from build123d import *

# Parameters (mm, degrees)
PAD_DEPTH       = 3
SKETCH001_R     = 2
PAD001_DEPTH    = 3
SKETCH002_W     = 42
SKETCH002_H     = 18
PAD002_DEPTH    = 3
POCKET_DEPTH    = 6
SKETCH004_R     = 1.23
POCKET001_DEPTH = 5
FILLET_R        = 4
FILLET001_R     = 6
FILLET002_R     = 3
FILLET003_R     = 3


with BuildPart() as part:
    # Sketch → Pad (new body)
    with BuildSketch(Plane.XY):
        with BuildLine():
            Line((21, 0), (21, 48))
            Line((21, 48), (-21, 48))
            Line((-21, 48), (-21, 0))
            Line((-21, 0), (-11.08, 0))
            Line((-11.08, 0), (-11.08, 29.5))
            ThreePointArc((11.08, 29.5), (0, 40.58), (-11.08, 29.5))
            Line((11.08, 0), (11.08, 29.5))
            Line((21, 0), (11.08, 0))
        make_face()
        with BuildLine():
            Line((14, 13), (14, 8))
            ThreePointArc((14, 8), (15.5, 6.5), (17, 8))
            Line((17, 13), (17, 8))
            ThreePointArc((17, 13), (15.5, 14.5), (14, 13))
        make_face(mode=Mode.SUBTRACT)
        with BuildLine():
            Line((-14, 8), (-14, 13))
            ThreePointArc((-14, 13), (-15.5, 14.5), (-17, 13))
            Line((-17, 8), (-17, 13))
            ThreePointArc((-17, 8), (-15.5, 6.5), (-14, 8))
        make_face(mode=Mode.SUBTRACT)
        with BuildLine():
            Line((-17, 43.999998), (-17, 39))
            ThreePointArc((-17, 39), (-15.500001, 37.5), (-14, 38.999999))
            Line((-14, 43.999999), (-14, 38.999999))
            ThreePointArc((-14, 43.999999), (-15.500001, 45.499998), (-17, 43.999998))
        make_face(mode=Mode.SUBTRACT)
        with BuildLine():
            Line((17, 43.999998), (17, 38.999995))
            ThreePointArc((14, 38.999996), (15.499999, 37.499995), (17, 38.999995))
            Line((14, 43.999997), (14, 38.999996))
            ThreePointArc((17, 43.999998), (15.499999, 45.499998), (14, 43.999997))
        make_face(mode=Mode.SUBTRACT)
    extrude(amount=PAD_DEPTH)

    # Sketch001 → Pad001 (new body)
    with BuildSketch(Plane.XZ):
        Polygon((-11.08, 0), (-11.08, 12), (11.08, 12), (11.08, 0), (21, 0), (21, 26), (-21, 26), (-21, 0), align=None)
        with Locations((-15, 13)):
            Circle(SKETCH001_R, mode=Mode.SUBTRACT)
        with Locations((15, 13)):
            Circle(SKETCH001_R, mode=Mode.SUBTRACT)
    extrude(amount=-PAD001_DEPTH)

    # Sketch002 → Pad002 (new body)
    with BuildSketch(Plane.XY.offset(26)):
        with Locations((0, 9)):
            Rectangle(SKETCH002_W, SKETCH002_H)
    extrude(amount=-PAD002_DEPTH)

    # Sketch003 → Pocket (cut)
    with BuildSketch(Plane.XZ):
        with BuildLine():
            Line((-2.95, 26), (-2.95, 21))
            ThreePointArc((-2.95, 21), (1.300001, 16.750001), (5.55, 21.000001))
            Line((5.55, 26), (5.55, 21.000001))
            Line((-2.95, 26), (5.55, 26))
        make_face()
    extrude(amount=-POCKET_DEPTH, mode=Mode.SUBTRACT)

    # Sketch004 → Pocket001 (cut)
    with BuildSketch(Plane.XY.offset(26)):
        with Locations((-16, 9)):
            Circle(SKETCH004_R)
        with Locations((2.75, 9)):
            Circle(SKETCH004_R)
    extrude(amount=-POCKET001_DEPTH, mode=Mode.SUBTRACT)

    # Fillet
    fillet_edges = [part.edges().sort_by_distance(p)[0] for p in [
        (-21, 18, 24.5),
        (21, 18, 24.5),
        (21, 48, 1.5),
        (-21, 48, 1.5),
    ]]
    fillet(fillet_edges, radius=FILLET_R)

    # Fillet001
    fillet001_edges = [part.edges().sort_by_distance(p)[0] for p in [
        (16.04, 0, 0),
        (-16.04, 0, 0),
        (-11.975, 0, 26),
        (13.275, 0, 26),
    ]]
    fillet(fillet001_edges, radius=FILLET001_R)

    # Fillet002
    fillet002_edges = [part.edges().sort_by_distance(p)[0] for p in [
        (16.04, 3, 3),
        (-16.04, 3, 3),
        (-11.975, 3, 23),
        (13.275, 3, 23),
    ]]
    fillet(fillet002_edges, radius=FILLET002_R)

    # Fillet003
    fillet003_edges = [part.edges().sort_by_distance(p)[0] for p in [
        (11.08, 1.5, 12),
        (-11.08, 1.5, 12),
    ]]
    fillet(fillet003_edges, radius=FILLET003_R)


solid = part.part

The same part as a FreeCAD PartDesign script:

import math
import FreeCAD as App
import Part
import Sketcher


def edges_at(feature, points):
    """Names of the edges that pass closest to the given points."""
    edges = feature.Shape.Edges
    near = lambda p: min(range(len(edges)), key=lambda i: edges[i].distToShape(Part.Vertex(*p))[0])
    return sorted({f"Edge{near(p) + 1}" for p in points})


def add_polygon(sketch, points):
    """Adds a closed chain of lines whose ends are joined by coincident constraints."""
    first, n = sketch.GeometryCount, len(points)
    for a, b in zip(points, points[1:] + points[:1]):
        sketch.addGeometry(Part.LineSegment(App.Vector(*a, 0), App.Vector(*b, 0)), False)
    for i in range(n):
        sketch.addConstraint(Sketcher.Constraint("Coincident", first + i, 2, first + (i + 1) % n, 1))

doc = App.newDocument("Part")
body = doc.addObject("PartDesign::Body", "Body")

sketch1 = body.newObject("Sketcher::SketchObject", "Sketch")
sketch1.AttachmentSupport = (doc.getObject("XY_Plane"), [""])
sketch1.MapMode = "FlatFace"
sketch1.addGeometry([
    Part.LineSegment(App.Vector(21, 0, 0), App.Vector(21, 48, 0)),
    Part.LineSegment(App.Vector(21, 48, 0), App.Vector(-21, 48, 0)),
    Part.LineSegment(App.Vector(-21, 48, 0), App.Vector(-21, 0, 0)),
    Part.LineSegment(App.Vector(-21, 0, 0), App.Vector(-11.1, 0, 0)),
    Part.LineSegment(App.Vector(-11.1, 0, 0), App.Vector(-11.1, 29.5, 0)),
    Part.ArcOfCircle(Part.Circle(App.Vector(0, 29.5, 0), App.Vector(0, 0, 1), 11.1), math.radians(0), math.radians(180)),
    Part.LineSegment(App.Vector(11.1, 29.5, 0), App.Vector(11.1, 0, 0)),
    Part.LineSegment(App.Vector(11.1, 0, 0), App.Vector(21, 0, 0)),
    Part.LineSegment(App.Vector(-14, 13, 0), App.Vector(-14, 8, 0)),
    Part.ArcOfCircle(Part.Circle(App.Vector(-15.5, 8, 0), App.Vector(0, 0, 1), 1.5), math.radians(180), math.radians(360)),
    Part.LineSegment(App.Vector(-17, 8, 0), App.Vector(-17, 13, 0)),
    Part.ArcOfCircle(Part.Circle(App.Vector(-15.5, 13, 0), App.Vector(0, 0, 1), 1.5), math.radians(0), math.radians(180)),
    Part.LineSegment(App.Vector(14, 8, 0), App.Vector(14, 13, 0)),
    Part.ArcOfCircle(Part.Circle(App.Vector(15.5, 13, 0), App.Vector(0, 0, 1), 1.5), math.radians(0), math.radians(180)),
    Part.LineSegment(App.Vector(17, 13, 0), App.Vector(17, 8, 0)),
    Part.ArcOfCircle(Part.Circle(App.Vector(15.5, 8, 0), App.Vector(0, 0, 1), 1.5), math.radians(180), math.radians(360)),
    Part.LineSegment(App.Vector(-17, 39, 0), App.Vector(-17, 44, 0)),
    Part.ArcOfCircle(Part.Circle(App.Vector(-15.5, 44, 0), App.Vector(0, 0, 1), 1.5), math.radians(0), math.radians(180)),
    Part.LineSegment(App.Vector(-14, 44, 0), App.Vector(-14, 39, 0)),
    Part.ArcOfCircle(Part.Circle(App.Vector(-15.5, 39, 0), App.Vector(0, 0, 1), 1.5), math.radians(180), math.radians(360)),
    Part.ArcOfCircle(Part.Circle(App.Vector(15.5, 44, 0), App.Vector(0, 0, 1), 1.5), math.radians(0), math.radians(180)),
    Part.LineSegment(App.Vector(17, 44, 0), App.Vector(17, 39, 0)),
    Part.ArcOfCircle(Part.Circle(App.Vector(15.5, 39, 0), App.Vector(0, 0, 1), 1.5), math.radians(180), math.radians(360)),
    Part.LineSegment(App.Vector(14, 39, 0), App.Vector(14, 44, 0)),
], False)
sketch1.addConstraint([
    Sketcher.Constraint("Coincident", 0, 2, 1, 1),
    Sketcher.Constraint("Coincident", 1, 2, 2, 1),
    Sketcher.Constraint("Coincident", 2, 2, 3, 1),
    Sketcher.Constraint("Coincident", 3, 2, 4, 1),
    Sketcher.Constraint("Tangent", 4, 2, 5, 2),
    Sketcher.Constraint("Tangent", 5, 1, 6, 1),
    Sketcher.Constraint("Coincident", 6, 2, 7, 1),
    Sketcher.Constraint("Coincident", 7, 2, 0, 1),
    Sketcher.Constraint("Tangent", 8, 2, 9, 2),
    Sketcher.Constraint("Tangent", 9, 1, 10, 1),
    Sketcher.Constraint("Tangent", 10, 2, 11, 2),
    Sketcher.Constraint("Tangent", 11, 1, 8, 1),
    Sketcher.Constraint("Tangent", 12, 2, 13, 2),
    Sketcher.Constraint("Tangent", 13, 1, 14, 1),
    Sketcher.Constraint("Tangent", 14, 2, 15, 2),
    Sketcher.Constraint("Tangent", 15, 1, 12, 1),
    Sketcher.Constraint("Tangent", 16, 2, 17, 2),
    Sketcher.Constraint("Tangent", 17, 1, 18, 1),
    Sketcher.Constraint("Tangent", 18, 2, 19, 2),
    Sketcher.Constraint("Tangent", 19, 1, 16, 1),
    Sketcher.Constraint("Tangent", 20, 1, 21, 1),
    Sketcher.Constraint("Tangent", 21, 2, 22, 2),
    Sketcher.Constraint("Tangent", 22, 1, 23, 1),
    Sketcher.Constraint("Tangent", 23, 2, 20, 2),
    Sketcher.Constraint("Vertical", 0),
    Sketcher.Constraint("Horizontal", 1),
    Sketcher.Constraint("Vertical", 2),
    Sketcher.Constraint("Horizontal", 3),
    Sketcher.Constraint("Vertical", 4),
    Sketcher.Constraint("Vertical", 6),
    Sketcher.Constraint("Horizontal", 7),
    Sketcher.Constraint("Vertical", 8),
    Sketcher.Constraint("Vertical", 10),
    Sketcher.Constraint("Vertical", 12),
    Sketcher.Constraint("Vertical", 14),
    Sketcher.Constraint("Vertical", 16),
    Sketcher.Constraint("Vertical", 18),
    Sketcher.Constraint("Vertical", 21),
    Sketcher.Constraint("Vertical", 23),
    Sketcher.Constraint("Equal", 11, 13),
    Sketcher.Constraint("Equal", 15, 17),
    Sketcher.Constraint("Equal", 19, 20),
    Sketcher.Constraint("Symmetric", 3, 2, 6, 2, -1, 1),
    Sketcher.Constraint("Symmetric", 11, 3, 13, 3, -2),
    Sketcher.Constraint("Symmetric", 17, 3, 20, 3, -2),
    Sketcher.Constraint("Symmetric", 2, 2, 7, 2, -2),
    Sketcher.Constraint("Horizontal", 9, 3, 15, 3),
    Sketcher.Constraint("Vertical", 11, 3, 17, 3),
    Sketcher.Constraint("Equal", 14, 18),
    Sketcher.Constraint("Equal", 18, 23),
    Sketcher.Constraint("Radius", 9, 1.5),
    Sketcher.Constraint("DistanceX", 1, 2, 1, 1, 42.0),
    Sketcher.Constraint("DistanceY", 0, 1, 0, 2, 48.0),
    Sketcher.Constraint("DistanceY", 8, 2, 8, 1, 5.0),
    Sketcher.Constraint("Radius", 5, 11.08),
    Sketcher.Constraint("DistanceY", 4, 1, 4, 2, 29.5),
    Sketcher.Constraint("DistanceY", -1, 1, 9, 3, 8.0),
    Sketcher.Constraint("DistanceY", -1, 1, 19, 3, 39.0),
    Sketcher.Constraint("DistanceX", 8, 2, -1, 1, 14.0),
])
pad1 = body.newObject("PartDesign::Pad", "Pad")
pad1.Profile = sketch1
pad1.Length = 3

sketch2 = body.newObject("Sketcher::SketchObject", "Sketch001")
sketch2.AttachmentSupport = (doc.getObject("XZ_Plane"), [""])
sketch2.MapMode = "FlatFace"
add_polygon(sketch2, [(-11.1, 0), (-11.1, 12), (11.1, 12), (11.1, 0), (21, 0), (21, 26), (-21, 26), (-21, 0)])
sketch2.addGeometry(Part.Circle(App.Vector(-15, 13, 0), App.Vector(0, 0, 1), 2), False)
sketch2.addGeometry(Part.Circle(App.Vector(15, 13, 0), App.Vector(0, 0, 1), 2), False)
sketch2.addConstraint([
    Sketcher.Constraint("Vertical", 0),
    Sketcher.Constraint("Horizontal", 1),
    Sketcher.Constraint("Vertical", 2),
    Sketcher.Constraint("Horizontal", 3),
    Sketcher.Constraint("Vertical", 4),
    Sketcher.Constraint("Horizontal", 5),
    Sketcher.Constraint("Vertical", 6),
    Sketcher.Constraint("Horizontal", 7),
    Sketcher.Constraint("Equal", 8, 9),
    Sketcher.Constraint("Symmetric", 3, 2, 6, 2, -1, 1),
    Sketcher.Constraint("Symmetric", 8, 3, 9, 3, -2),
    Sketcher.Constraint("Symmetric", 2, 2, 7, 2, -2),
    Sketcher.Constraint("Diameter", 8, 4.0),
    Sketcher.Constraint("DistanceX", 5, 2, 5, 1, 42.0),
    Sketcher.Constraint("DistanceY", 0, 1, 0, 2, 12.0),
    Sketcher.Constraint("DistanceY", 4, 1, 4, 2, 26.0),
    Sketcher.Constraint("DistanceX", 8, 3, -1, 1, 15.0),
    Sketcher.Constraint("DistanceY", -1, 1, 8, 3, 13.0),
    Sketcher.Constraint("DistanceX", 1, 1, 1, 2, 22.16),
])
pad2 = body.newObject("PartDesign::Pad", "Pad001")
pad2.Profile = sketch2
pad2.Length = 3
pad2.Reversed = True

sketch3 = body.newObject("Sketcher::SketchObject", "Sketch002")
sketch3.AttachmentSupport = (doc.getObject("XY_Plane"), [""])
sketch3.MapMode = "FlatFace"
sketch3.AttachmentOffset = App.Placement(App.Vector(0, 0, 26), App.Rotation())
add_polygon(sketch3, [(-21, 18), (-21, 0), (21, 0), (21, 18)])
sketch3.addConstraint([
    Sketcher.Constraint("Vertical", 0),
    Sketcher.Constraint("Horizontal", 1),
    Sketcher.Constraint("Vertical", 2),
    Sketcher.Constraint("Horizontal", 3),
    Sketcher.Constraint("Symmetric", 0, 2, 1, 2, -1, 1),
    Sketcher.Constraint("DistanceX", 1, 1, 1, 2, 42.0),
    Sketcher.Constraint("DistanceY", 0, 2, 0, 1, 18.0),
])
pad3 = body.newObject("PartDesign::Pad", "Pad002")
pad3.Profile = sketch3
pad3.Length = 3
pad3.Reversed = True

sketch4 = body.newObject("Sketcher::SketchObject", "Sketch003")
sketch4.AttachmentSupport = (doc.getObject("XZ_Plane"), [""])
sketch4.MapMode = "FlatFace"
sketch4.addGeometry([
    Part.LineSegment(App.Vector(-3, 26, 0), App.Vector(-3, 21, 0)),
    Part.ArcOfCircle(Part.Circle(App.Vector(1.3, 21, 0), App.Vector(0, 0, 1), 4.2), math.radians(-180), math.radians(0)),
    Part.LineSegment(App.Vector(5.5, 21, 0), App.Vector(5.5, 26, 0)),
    Part.LineSegment(App.Vector(5.5, 26, 0), App.Vector(-3, 26, 0)),
], False)
sketch4.addConstraint([
    Sketcher.Constraint("Tangent", 0, 2, 1, 1),
    Sketcher.Constraint("Tangent", 1, 2, 2, 1),
    Sketcher.Constraint("Coincident", 2, 2, 3, 1),
    Sketcher.Constraint("Coincident", 3, 2, 0, 1),
    Sketcher.Constraint("Vertical", 0),
    Sketcher.Constraint("Vertical", 2),
    Sketcher.Constraint("Horizontal", 3),
    Sketcher.Constraint("DistanceY", 0, 2, 0, 1, 5.0),
    Sketcher.Constraint("Radius", 1, 4.25),
    Sketcher.Constraint("DistanceY", -1, 1, 1, 3, 21.000001),
    Sketcher.Constraint("DistanceX", -1, 1, 1, 3, 1.3),
])
pocket1 = body.newObject("PartDesign::Pocket", "Pocket")
pocket1.Profile = sketch4
pocket1.Length = 6

sketch5 = body.newObject("Sketcher::SketchObject", "Sketch004")
sketch5.AttachmentSupport = (doc.getObject("XY_Plane"), [""])
sketch5.MapMode = "FlatFace"
sketch5.AttachmentOffset = App.Placement(App.Vector(0, 0, 26), App.Rotation())
sketch5.addGeometry([
    Part.Circle(App.Vector(-16, 9, 0), App.Vector(0, 0, 1), 1.2),
    Part.Circle(App.Vector(2.8, 9, 0), App.Vector(0, 0, 1), 1.2),
], False)
sketch5.addConstraint([
    Sketcher.Constraint("Equal", 0, 1),
    Sketcher.Constraint("Horizontal", 0, 3, 1, 3),
    Sketcher.Constraint("Diameter", 0, 2.46),
    Sketcher.Constraint("DistanceX", 0, 3, -1, 1, 16.0),
    Sketcher.Constraint("DistanceY", -1, 1, 0, 3, 9.0),
    Sketcher.Constraint("DistanceX", -1, 1, 1, 3, 2.75),
])
pocket2 = body.newObject("PartDesign::Pocket", "Pocket001")
pocket2.Profile = sketch5
pocket2.Length = 5
doc.recompute()

fillet = body.newObject("PartDesign::Fillet", "Fillet")
fillet.Base = (pocket2, edges_at(pocket2, [
    (-21, 18, 24.5),
    (21, 18, 24.5),
    (21, 48, 1.5),
    (-21, 48, 1.5),
]))
fillet.Radius = 4
doc.recompute()

fillet2 = body.newObject("PartDesign::Fillet", "Fillet001")
fillet2.Base = (fillet, edges_at(fillet, [
    (16.04, 0, 0),
    (-16.04, 0, 0),
    (-11.975, 0, 26),
    (13.275, 0, 26),
]))
fillet2.Radius = 6
doc.recompute()

fillet3 = body.newObject("PartDesign::Fillet", "Fillet002")
fillet3.Base = (fillet2, edges_at(fillet2, [
    (16.04, 3, 3),
    (-16.04, 3, 3),
    (-11.975, 3, 23),
    (13.275, 3, 23),
]))
fillet3.Radius = 3
doc.recompute()

fillet4 = body.newObject("PartDesign::Fillet", "Fillet003")
fillet4.Base = (fillet3, edges_at(fillet3, [(11.08, 1.5, 12), (-11.08, 1.5, 12)]))
fillet4.Radius = 3

doc.recompute()
